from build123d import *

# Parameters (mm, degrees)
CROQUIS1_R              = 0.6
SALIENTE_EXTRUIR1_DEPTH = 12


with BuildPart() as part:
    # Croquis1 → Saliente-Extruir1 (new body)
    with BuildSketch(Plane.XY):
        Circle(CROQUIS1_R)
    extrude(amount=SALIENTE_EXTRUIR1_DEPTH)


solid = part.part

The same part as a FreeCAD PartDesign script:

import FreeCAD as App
import Part
import Sketcher

doc = App.newDocument("Part")
body = doc.addObject("PartDesign::Body", "Body")

sketch1 = body.newObject("Sketcher::SketchObject", "Sketch")
sketch1.AttachmentSupport = (doc.getObject("XY_Plane"), [""])
sketch1.MapMode = "FlatFace"
sketch1.addGeometry(Part.Circle(App.Vector(0, 0, 0), App.Vector(0, 0, 1), 0.6), False)
sketch1.addConstraint(Sketcher.Constraint("Coincident", 0, 3, -1, 1))
sketch1.addConstraint(Sketcher.Constraint("Diameter", 0, 1.2))
pad1 = body.newObject("PartDesign::Pad", "Pad")
pad1.Profile = sketch1
pad1.Length = 12

doc.recompute()
